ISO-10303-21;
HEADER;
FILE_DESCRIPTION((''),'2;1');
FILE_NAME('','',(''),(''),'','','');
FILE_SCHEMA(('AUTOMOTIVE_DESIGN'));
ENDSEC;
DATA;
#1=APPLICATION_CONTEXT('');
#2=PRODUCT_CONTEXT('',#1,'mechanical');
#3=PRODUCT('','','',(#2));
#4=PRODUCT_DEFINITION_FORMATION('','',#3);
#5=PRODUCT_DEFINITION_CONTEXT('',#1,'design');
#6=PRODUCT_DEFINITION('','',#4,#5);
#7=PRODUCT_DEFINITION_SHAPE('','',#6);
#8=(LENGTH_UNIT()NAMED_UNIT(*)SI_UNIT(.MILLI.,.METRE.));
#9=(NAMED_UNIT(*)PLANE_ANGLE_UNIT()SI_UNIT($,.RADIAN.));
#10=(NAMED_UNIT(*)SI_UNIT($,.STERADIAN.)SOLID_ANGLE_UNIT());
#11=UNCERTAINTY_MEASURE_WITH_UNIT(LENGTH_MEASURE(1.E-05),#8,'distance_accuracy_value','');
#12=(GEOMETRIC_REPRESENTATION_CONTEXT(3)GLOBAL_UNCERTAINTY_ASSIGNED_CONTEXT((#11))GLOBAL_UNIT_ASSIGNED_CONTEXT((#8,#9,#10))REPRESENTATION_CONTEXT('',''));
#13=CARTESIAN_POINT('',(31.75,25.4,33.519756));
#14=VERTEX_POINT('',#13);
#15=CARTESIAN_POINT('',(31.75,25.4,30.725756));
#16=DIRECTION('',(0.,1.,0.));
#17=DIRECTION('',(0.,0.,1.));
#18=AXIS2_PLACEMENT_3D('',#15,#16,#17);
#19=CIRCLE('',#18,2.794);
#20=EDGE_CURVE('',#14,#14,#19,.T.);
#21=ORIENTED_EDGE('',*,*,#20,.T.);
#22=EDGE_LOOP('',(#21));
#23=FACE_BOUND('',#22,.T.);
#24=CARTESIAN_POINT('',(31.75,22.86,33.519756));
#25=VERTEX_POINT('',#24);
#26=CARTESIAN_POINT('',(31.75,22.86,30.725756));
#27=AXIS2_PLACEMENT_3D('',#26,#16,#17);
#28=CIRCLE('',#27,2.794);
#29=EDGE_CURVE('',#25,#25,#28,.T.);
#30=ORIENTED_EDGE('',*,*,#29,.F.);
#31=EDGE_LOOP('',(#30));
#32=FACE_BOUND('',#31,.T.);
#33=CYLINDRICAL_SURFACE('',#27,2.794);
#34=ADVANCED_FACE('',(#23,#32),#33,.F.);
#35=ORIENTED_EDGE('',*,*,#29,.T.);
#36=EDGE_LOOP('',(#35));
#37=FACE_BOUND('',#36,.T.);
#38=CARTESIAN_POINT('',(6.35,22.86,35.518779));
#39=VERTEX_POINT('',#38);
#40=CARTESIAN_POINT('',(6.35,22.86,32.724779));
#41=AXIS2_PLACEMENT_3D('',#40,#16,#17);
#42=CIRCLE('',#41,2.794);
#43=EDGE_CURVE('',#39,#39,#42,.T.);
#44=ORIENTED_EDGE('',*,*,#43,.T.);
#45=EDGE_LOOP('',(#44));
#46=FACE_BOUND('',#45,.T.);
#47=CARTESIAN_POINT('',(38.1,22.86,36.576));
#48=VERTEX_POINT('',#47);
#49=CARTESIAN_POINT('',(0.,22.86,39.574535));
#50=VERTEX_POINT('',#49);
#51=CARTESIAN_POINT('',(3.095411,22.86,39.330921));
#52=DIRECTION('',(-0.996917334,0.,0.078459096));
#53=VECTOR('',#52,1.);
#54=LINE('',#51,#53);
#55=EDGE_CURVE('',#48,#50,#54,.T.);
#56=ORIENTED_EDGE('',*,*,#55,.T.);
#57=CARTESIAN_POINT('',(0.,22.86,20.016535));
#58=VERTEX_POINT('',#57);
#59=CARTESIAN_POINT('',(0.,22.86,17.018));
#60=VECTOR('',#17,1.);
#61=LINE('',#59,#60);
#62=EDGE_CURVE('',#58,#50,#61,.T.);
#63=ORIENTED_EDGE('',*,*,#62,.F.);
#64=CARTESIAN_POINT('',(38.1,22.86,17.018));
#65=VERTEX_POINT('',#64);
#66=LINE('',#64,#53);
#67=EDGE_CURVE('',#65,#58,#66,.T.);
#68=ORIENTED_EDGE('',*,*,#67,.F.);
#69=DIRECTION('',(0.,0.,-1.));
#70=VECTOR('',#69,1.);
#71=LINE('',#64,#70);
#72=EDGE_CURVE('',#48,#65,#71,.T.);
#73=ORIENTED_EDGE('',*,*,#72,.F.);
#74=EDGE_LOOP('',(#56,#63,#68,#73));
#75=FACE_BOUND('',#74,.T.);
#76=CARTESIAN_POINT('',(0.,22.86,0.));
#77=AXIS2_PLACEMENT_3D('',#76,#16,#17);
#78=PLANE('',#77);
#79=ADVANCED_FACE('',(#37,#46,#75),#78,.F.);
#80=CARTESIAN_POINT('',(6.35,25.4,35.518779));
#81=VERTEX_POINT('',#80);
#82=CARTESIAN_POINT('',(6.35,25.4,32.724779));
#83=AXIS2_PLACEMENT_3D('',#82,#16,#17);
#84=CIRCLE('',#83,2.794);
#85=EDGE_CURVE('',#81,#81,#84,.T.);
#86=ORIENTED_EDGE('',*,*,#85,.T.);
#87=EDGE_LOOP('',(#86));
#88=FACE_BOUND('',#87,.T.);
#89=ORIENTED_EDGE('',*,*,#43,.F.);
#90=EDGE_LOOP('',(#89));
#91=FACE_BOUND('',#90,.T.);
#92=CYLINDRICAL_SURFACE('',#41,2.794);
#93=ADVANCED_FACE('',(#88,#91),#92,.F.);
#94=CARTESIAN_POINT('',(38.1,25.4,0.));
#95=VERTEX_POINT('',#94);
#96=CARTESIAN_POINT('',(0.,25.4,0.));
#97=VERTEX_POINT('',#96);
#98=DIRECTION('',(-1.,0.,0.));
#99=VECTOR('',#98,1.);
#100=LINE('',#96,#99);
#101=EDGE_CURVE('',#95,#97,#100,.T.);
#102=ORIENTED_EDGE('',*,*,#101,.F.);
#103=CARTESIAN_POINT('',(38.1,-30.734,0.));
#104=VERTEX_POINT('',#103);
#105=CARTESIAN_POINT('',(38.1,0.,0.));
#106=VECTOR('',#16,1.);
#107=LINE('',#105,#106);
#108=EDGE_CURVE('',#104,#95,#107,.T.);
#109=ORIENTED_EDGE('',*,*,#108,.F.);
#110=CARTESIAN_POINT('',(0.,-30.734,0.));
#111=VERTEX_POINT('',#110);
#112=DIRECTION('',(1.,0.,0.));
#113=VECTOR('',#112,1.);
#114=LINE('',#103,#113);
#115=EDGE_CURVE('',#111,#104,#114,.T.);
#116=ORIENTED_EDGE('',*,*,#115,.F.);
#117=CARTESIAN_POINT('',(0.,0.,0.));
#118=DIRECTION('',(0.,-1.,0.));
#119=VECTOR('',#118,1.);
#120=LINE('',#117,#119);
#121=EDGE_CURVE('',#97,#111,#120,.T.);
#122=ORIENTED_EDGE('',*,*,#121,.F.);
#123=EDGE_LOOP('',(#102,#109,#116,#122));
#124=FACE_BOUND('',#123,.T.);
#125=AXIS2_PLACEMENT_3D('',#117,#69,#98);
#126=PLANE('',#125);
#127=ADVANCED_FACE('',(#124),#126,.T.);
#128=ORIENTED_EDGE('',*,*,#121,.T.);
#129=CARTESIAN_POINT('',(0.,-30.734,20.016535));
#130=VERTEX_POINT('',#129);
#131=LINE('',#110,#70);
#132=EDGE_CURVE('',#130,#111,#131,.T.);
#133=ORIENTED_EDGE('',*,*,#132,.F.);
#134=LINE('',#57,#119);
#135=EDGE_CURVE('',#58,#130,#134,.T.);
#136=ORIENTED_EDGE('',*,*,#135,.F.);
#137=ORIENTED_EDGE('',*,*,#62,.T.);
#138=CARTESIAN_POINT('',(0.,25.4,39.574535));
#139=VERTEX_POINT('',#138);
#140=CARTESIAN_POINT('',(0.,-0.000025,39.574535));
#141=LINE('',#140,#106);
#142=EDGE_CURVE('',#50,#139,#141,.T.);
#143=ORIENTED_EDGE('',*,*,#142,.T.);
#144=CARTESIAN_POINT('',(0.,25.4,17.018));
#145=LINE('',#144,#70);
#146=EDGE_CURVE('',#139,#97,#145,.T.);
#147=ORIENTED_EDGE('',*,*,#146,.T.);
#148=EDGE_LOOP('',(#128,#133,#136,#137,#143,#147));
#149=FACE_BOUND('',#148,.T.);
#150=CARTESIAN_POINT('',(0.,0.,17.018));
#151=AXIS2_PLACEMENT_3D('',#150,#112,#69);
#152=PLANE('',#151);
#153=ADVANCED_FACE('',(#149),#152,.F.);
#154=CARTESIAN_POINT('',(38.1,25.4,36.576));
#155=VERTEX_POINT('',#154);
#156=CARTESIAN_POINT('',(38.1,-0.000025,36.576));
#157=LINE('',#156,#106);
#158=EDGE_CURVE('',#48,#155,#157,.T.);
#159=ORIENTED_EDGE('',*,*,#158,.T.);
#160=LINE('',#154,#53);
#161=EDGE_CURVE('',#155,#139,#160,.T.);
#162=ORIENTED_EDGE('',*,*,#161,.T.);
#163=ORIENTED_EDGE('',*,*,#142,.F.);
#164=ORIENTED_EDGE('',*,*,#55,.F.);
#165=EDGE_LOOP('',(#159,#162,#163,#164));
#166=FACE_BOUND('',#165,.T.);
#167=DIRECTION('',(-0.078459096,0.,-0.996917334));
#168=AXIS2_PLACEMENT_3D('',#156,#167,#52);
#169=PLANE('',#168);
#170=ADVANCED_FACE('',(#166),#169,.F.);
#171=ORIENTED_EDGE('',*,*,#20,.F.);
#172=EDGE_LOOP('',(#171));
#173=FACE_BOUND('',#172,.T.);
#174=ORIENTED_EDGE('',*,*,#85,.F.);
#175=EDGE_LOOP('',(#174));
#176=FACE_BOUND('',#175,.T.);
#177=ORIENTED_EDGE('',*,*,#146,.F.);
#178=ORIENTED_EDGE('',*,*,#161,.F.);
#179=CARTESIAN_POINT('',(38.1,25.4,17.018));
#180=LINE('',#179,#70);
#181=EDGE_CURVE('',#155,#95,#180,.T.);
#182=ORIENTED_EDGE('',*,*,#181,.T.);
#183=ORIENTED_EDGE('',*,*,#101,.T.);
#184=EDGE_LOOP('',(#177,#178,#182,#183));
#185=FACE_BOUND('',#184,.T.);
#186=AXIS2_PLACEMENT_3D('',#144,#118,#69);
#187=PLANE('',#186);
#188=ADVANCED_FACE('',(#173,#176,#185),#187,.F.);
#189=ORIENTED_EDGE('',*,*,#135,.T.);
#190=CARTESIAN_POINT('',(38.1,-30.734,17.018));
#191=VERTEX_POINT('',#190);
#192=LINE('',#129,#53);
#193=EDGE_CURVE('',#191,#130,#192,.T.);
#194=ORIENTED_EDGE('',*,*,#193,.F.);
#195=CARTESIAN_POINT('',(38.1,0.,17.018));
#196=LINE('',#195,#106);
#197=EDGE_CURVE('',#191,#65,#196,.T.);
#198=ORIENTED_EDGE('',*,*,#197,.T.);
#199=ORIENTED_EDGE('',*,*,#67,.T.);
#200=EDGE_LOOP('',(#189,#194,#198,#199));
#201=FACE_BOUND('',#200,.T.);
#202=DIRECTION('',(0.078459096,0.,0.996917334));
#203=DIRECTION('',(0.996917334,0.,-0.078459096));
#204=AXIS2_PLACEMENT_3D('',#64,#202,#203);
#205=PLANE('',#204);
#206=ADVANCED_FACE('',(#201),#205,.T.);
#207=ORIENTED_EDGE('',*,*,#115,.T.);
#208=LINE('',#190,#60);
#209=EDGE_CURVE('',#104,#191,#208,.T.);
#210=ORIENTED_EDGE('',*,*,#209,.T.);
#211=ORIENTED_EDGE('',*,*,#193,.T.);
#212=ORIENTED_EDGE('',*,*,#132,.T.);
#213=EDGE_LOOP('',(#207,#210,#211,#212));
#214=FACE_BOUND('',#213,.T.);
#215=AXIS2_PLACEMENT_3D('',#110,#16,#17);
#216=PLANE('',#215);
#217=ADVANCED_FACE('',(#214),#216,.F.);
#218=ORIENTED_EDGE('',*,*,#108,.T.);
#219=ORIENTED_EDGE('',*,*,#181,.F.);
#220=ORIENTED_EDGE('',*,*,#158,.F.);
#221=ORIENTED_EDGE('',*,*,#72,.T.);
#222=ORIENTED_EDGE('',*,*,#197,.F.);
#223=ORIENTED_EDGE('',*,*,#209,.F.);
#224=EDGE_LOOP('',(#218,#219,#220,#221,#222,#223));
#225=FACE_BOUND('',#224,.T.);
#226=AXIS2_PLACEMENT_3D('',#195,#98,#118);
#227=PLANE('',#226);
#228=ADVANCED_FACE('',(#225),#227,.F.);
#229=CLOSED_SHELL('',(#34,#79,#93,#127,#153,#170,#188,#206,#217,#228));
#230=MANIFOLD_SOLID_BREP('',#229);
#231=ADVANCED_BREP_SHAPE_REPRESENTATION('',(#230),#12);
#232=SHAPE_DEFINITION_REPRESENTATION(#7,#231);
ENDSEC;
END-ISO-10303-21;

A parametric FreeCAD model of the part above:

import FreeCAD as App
import Part
import Sketcher
from FreeCAD import Vector
Q = App.Units.Quantity


def add_polygon(sketch, points):
    """Adds a closed chain of lines whose ends are joined by coincident constraints."""
    first, n = sketch.GeometryCount, len(points)
    for a, b in zip(points, points[1:] + points[:1]):
        sketch.addGeometry(Part.LineSegment(App.Vector(*a, 0), App.Vector(*b, 0)), False)
    for i in range(n):
        sketch.addConstraint(Sketcher.Constraint("Coincident", first + i, 2, first + (i + 1) % n, 1))

doc = App.newDocument("Part")
body = doc.addObject("PartDesign::Body", "Body")

sketch1 = body.newObject("Sketcher::SketchObject", "Sketch")
sketch1.AttachmentSupport = (doc.getObject("XY_Plane"), [""])
sketch1.MapMode = "FlatFace"
add_polygon(sketch1, [(0, 25), (0, 0), (38, 0), (38, 25)])
sketch1.addConstraint([
    Sketcher.Constraint("Vertical", 0),
    Sketcher.Constraint("Horizontal", 1),
    Sketcher.Constraint("Vertical", 2),
    Sketcher.Constraint("Horizontal", 3),
    Sketcher.Constraint("Coincident", 0, 2, -1, 1),
    Sketcher.Constraint("DistanceY", 0, 2, 0, 1, Q("1 in")),
    Sketcher.Constraint("DistanceX", 1, 1, 1, 2, Q("1.5 in")),
])
pad1 = body.newObject("PartDesign::Pad", "Pad")
pad1.Profile = sketch1
pad1.Length = Q("0.67 in")

sketch2 = body.newObject("Sketcher::SketchObject", "Sketch001")
sketch2.AttachmentSupport = (doc.getObject("XZ_Plane"), [""])
sketch2.MapMode = "FlatFace"
sketch2.AttachmentOffset = App.Placement(Vector(0, 0, -1 * 25.4), App.Rotation())
add_polygon(sketch2, [(0, 17), (0, 40.4), (38.1, 40.4), (38.1, 17)])
sketch2.addGeometry(Part.Circle(Vector(6.3, 32.7, 0), Vector(0, 0, 1), 2.8), False)
sketch2.addGeometry(Part.Circle(Vector(31.8, 30.7, 0), Vector(0, 0, 1), 2.8), False)
sketch2.addConstraint([
    Sketcher.Constraint("Vertical", 0),
    Sketcher.Constraint("Horizontal", 1),
    Sketcher.Constraint("Vertical", 2),
    Sketcher.Constraint("Horizontal", 3),
    Sketcher.Constraint("Equal", 4, 5),
    Sketcher.Constraint("PointOnObject", 0, 2, -2),
    Sketcher.Constraint("Diameter", 4, Q("0.22 in")),
    Sketcher.Constraint("DistanceX", 1, 1, 1, 2, Q("1.5 in")),
    Sketcher.Constraint("DistanceX", 4, 3, 5, 3, Q("1 in")),
    Sketcher.Constraint("DistanceY", 0, 1, 0, 2, Q("0.92 in")),
    Sketcher.Constraint("DistanceX", -1, 1, 4, 3, Q("0.25 in")),
    Sketcher.Constraint("DistanceY", -1, 1, 0, 2, Q("1.59 in")),
    Sketcher.Constraint("DistanceY", -1, 1, 4, 3, 32.724779),
    Sketcher.Constraint("DistanceY", -1, 1, 5, 3, 30.725756),
])
pad2 = body.newObject("PartDesign::Pad", "Pad001")
pad2.Profile = sketch2
pad2.Length = Q("0.1 in")

sketch3 = body.newObject("Sketcher::SketchObject", "Sketch002")
sketch3.AttachmentSupport = (doc.getObject("XZ_Plane"), [""])
sketch3.MapMode = "FlatFace"
sketch3.AttachmentOffset = App.Placement(Vector(0, 0, -1 * 25.4), App.Rotation())
add_polygon(sketch3, [(38.1, 36.6), (0, 39.6), (0, 40.4), (38.1, 40.4)])
sketch3.addConstraint([
    Sketcher.Constraint("Vertical", 1),
    Sketcher.Constraint("Horizontal", 2),
    Sketcher.Constraint("Vertical", 3),
    Sketcher.Constraint("PointOnObject", 0, 2, -2),
    Sketcher.Constraint("DistanceX", 2, 1, 2, 2, Q("1.5 in")),
    Sketcher.Constraint("DistanceY", 3, 2, 3, 1, Q("0.15 in")),
    Sketcher.Constraint("Angle", 0, Q("175.5 deg")),
    Sketcher.Constraint("DistanceY", -1, 1, 1, 2, Q("1.59 in")),
])
pocket1 = body.newObject("PartDesign::Pocket", "Pocket")
pocket1.Profile = sketch3
pocket1.Type = "ThroughAll"
pocket1.Reversed = True

sketch4 = body.newObject("Sketcher::SketchObject", "Sketch003")
sketch4.AttachmentSupport = (doc.getObject("XZ_Plane"), [""])
sketch4.MapMode = "FlatFace"
add_polygon(sketch4, [(38.1, 17), (0, 20), (0, 17)])
sketch4.addConstraint([
    Sketcher.Constraint("Vertical", 1),
    Sketcher.Constraint("Horizontal", 2),
    Sketcher.Constraint("PointOnObject", 0, 2, -2),
    Sketcher.Constraint("DistanceX", 2, 1, 2, 2, Q("1.5 in")),
    Sketcher.Constraint("Angle", 0, Q("175.5 deg")),
    Sketcher.Constraint("DistanceY", -1, 1, 1, 2, Q("0.67 in")),
])
pad3 = body.newObject("PartDesign::Pad", "Pad002")
pad3.Profile = sketch4
pad3.Length = Q("0.9 in")
pad3.Reversed = True

sketch5 = body.newObject("Sketcher::SketchObject", "Sketch004")
sketch5.AttachmentSupport = (doc.getObject("XZ_Plane"), [""])
sketch5.MapMode = "FlatFace"
add_polygon(sketch5, [(0, 20), (0, 0), (38, 0), (38, 17)])
sketch5.addConstraint([
    Sketcher.Constraint("Vertical", 0),
    Sketcher.Constraint("Horizontal", 1),
    Sketcher.Constraint("Vertical", 2),
    Sketcher.Constraint("Coincident", 0, 2, -1, 1),
    Sketcher.Constraint("DistanceX", 1, 1, 1, 2, Q("1.5 in")),
    Sketcher.Constraint("DistanceY", 2, 1, 2, 2, Q("0.67 in")),
    Sketcher.Constraint("Angle", 3, Q("175.5 deg")),
])
pad4 = body.newObject("PartDesign::Pad", "Pad003")
pad4.Profile = sketch5
pad4.Length = Q("1.21 in")

sketch6 = body.newObject("Sketcher::SketchObject", "Sketch005")
sketch6.AttachmentSupport = (doc.getObject("XY_Plane"), [""])
sketch6.MapMode = "FlatFace"
sketch6.addGeometry([
    Part.Circle(Vector(25.4, -2.8, 0), Vector(0, 0, 1), 2),
    Part.Circle(Vector(12.7, -2.8, 0), Vector(0, 0, 1), 2),
], False)
sketch6.addConstraint([
    Sketcher.Constraint("Equal", 0, 1),
    Sketcher.Constraint("Horizontal", 0, 3, 1, 3),
    Sketcher.Constraint("Diameter", 0, Q("0.159 in")),
    Sketcher.Constraint("DistanceX", -1, 1, 0, 3, Q("1 in")),
    Sketcher.Constraint("DistanceX", -1, 1, 1, 3, Q("0.5 in")),
    Sketcher.Constraint("DistanceY", 0, 3, -1, 1, Q("0.11 in")),
])
pocket2 = body.newObject("PartDesign::Pocket", "Pocket001")
pocket2.Profile = sketch6
pocket2.Length = Q("1.21 in")
pocket2.Reversed = True

sketch7 = body.newObject("Sketcher::SketchObject", "Sketch006")
sketch7.AttachmentSupport = (doc.getObject("XZ_Plane"), [""])
sketch7.MapMode = "FlatFace"
add_polygon(sketch7, [(0, 0), (38, 0), (38, 17), (0, 20)])
sketch7.addConstraint([
    Sketcher.Constraint("Horizontal", 0),
    Sketcher.Constraint("Vertical", 1),
    Sketcher.Constraint("Vertical", 3),
    Sketcher.Constraint("Coincident", 3, 2, -1, 1),
    Sketcher.Constraint("DistanceX", 0, 1, 0, 2, Q("1.5 in")),
    Sketcher.Constraint("DistanceY", 1, 1, 1, 2, Q("0.67 in")),
    Sketcher.Constraint("Angle", 2, Q("175.5 deg")),
])
pad5 = body.newObject("PartDesign::Pad", "Pad004")
pad5.Profile = sketch7
pad5.Length = Q("1.21 in")

doc.recompute()
